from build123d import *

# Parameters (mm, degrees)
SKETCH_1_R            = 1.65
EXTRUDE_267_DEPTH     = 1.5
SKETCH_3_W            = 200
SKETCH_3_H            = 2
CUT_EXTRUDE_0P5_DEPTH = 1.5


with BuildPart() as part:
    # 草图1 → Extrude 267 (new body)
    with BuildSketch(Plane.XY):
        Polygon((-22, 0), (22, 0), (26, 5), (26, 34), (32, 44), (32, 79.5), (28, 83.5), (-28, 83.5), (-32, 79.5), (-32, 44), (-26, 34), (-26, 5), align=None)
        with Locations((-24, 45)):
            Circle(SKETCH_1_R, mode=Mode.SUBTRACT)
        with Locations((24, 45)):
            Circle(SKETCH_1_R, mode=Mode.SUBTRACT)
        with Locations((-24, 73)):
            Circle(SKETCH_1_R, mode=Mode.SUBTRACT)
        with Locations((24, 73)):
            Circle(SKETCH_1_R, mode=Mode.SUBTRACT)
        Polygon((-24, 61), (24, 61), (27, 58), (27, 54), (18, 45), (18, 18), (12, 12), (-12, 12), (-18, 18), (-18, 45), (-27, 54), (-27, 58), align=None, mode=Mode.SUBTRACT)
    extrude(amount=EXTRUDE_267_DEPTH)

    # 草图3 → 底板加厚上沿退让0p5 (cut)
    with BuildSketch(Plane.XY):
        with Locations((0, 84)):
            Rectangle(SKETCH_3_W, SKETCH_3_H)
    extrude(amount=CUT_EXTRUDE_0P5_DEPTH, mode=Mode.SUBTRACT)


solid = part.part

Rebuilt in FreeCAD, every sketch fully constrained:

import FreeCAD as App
import Part
import Sketcher

V = App.Vector

doc = App.newDocument("Part")
body = doc.addObject("PartDesign::Body", "Body")

sketch1 = body.newObject("Sketcher::SketchObject", "Sketch")
sketch1.AttachmentSupport = (doc.getObject("XY_Plane"), [""])
sketch1.MapMode = "FlatFace"
sketch1.addGeometry([
    Part.LineSegment(V(-22, 0, 0), V(22, 0, 0)),
    Part.LineSegment(V(22, 0, 0), V(26, 5, 0)),
    Part.LineSegment(V(26, 5, 0), V(26, 34, 0)),
    Part.LineSegment(V(26, 34, 0), V(32, 44, 0)),
    Part.LineSegment(V(32, 44, 0), V(32, 79.5, 0)),
    Part.LineSegment(V(32, 79.5, 0), V(28, 83.5, 0)),
    Part.LineSegment(V(28, 83.5, 0), V(-28, 83.5, 0)),
    Part.LineSegment(V(-28, 83.5, 0), V(-32, 79.5, 0)),
    Part.LineSegment(V(-32, 79.5, 0), V(-32, 44, 0)),
    Part.LineSegment(V(-32, 44, 0), V(-26, 34, 0)),
    Part.LineSegment(V(-26, 34, 0), V(-26, 5, 0)),
    Part.LineSegment(V(-26, 5, 0), V(-22, 0, 0)),
    Part.LineSegment(V(-27, 58, 0), V(-24, 61, 0)),
    Part.LineSegment(V(-24, 61, 0), V(24, 61, 0)),
    Part.LineSegment(V(24, 61, 0), V(27, 58, 0)),
    Part.LineSegment(V(27, 58, 0), V(27, 54, 0)),
    Part.LineSegment(V(27, 54, 0), V(18, 45, 0)),
    Part.LineSegment(V(18, 45, 0), V(18, 18, 0)),
    Part.LineSegment(V(18, 18, 0), V(12, 12, 0)),
    Part.LineSegment(V(12, 12, 0), V(-12, 12, 0)),
    Part.LineSegment(V(-12, 12, 0), V(-18, 18, 0)),
    Part.LineSegment(V(-18, 18, 0), V(-18, 45, 0)),
    Part.LineSegment(V(-18, 45, 0), V(-27, 54, 0)),
    Part.LineSegment(V(-27, 54, 0), V(-27, 58, 0)),
    Part.Circle(V(-24, 45, 0), V(0, 0, 1), 1.6),
    Part.Circle(V(-24, 73, 0), V(0, 0, 1), 1.6),
    Part.Circle(V(24, 45, 0), V(0, 0, 1), 1.6),
    Part.Circle(V(24, 73, 0), V(0, 0, 1), 1.6),
], False)
sketch1.addConstraint([
    Sketcher.Constraint("Coincident", 0, 2, 1, 1),
    Sketcher.Constraint("Coincident", 1, 2, 2, 1),
    Sketcher.Constraint("Coincident", 2, 2, 3, 1),
    Sketcher.Constraint("Coincident", 3, 2, 4, 1),
    Sketcher.Constraint("Coincident", 4, 2, 5, 1),
    Sketcher.Constraint("Coincident", 5, 2, 6, 1),
    Sketcher.Constraint("Coincident", 6, 2, 7, 1),
    Sketcher.Constraint("Coincident", 7, 2, 8, 1),
    Sketcher.Constraint("Coincident", 8, 2, 9, 1),
    Sketcher.Constraint("Coincident", 9, 2, 10, 1),
    Sketcher.Constraint("Coincident", 10, 2, 11, 1),
    Sketcher.Constraint("Coincident", 11, 2, 0, 1),
    Sketcher.Constraint("Coincident", 12, 2, 13, 1),
    Sketcher.Constraint("Coincident", 13, 2, 14, 1),
    Sketcher.Constraint("Coincident", 14, 2, 15, 1),
    Sketcher.Constraint("Coincident", 15, 2, 16, 1),
    Sketcher.Constraint("Coincident", 16, 2, 17, 1),
    Sketcher.Constraint("Coincident", 17, 2, 18, 1),
    Sketcher.Constraint("Coincident", 18, 2, 19, 1),
    Sketcher.Constraint("Coincident", 19, 2, 20, 1),
    Sketcher.Constraint("Coincident", 20, 2, 21, 1),
    Sketcher.Constraint("Coincident", 21, 2, 22, 1),
    Sketcher.Constraint("Coincident", 22, 2, 23, 1),
    Sketcher.Constraint("Coincident", 23, 2, 12, 1),
    Sketcher.Constraint("Horizontal", 0),
    Sketcher.Constraint("Vertical", 2),
    Sketcher.Constraint("Vertical", 4),
    Sketcher.Constraint("Horizontal", 6),
    Sketcher.Constraint("Vertical", 8),
    Sketcher.Constraint("Vertical", 10),
    Sketcher.Constraint("Horizontal", 13),
    Sketcher.Constraint("Vertical", 15),
    Sketcher.Constraint("Vertical", 17),
    Sketcher.Constraint("Horizontal", 19),
    Sketcher.Constraint("Vertical", 21),
    Sketcher.Constraint("Vertical", 23),
    Sketcher.Constraint("Equal", 24, 25),
    Sketcher.Constraint("Equal", 25, 26),
    Sketcher.Constraint("Equal", 26, 27),
    Sketcher.Constraint("Symmetric", 0, 2, 11, 2, -1, 1),
    Sketcher.Constraint("Symmetric", 24, 3, 26, 3, -2),
    Sketcher.Constraint("Symmetric", 25, 3, 27, 3, -2),
    Sketcher.Constraint("Symmetric", 4, 2, 7, 2, -2),
    Sketcher.Constraint("Symmetric", 2, 2, 9, 2, -2),
    Sketcher.Constraint("Symmetric", 17, 2, 20, 2, -2),
    Sketcher.Constraint("Symmetric", 15, 2, 22, 2, -2),
    Sketcher.Constraint("Perpendicular", 5, 7),
    Sketcher.Constraint("Parallel", 7, 12),
    Sketcher.Constraint("Perpendicular", 12, 14),
    Sketcher.Constraint("Perpendicular", 14, 16),
    Sketcher.Constraint("Parallel", 16, 18),
    Sketcher.Constraint("Perpendicular", 18, 20),
    Sketcher.Constraint("Parallel", 20, 22),
    Sketcher.Constraint("Horizontal", 3, 2, 8, 2),
    Sketcher.Constraint("Horizontal", 1, 2, 10, 2),
    Sketcher.Constraint("Horizontal", 26, 3, 16, 2),
    Sketcher.Constraint("Horizontal", 16, 2, 21, 2),
    Sketcher.Constraint("Horizontal", 14, 2, 23, 2),
    Sketcher.Constraint("Vertical", 24, 3, 25, 3),
    Sketcher.Constraint("Vertical", 25, 3, 12, 2),
    Sketcher.Constraint("Diameter", 24, 3.3),
    Sketcher.Constraint("DistanceX", 0, 1, 0, 2, 44.0),
    Sketcher.Constraint("DistanceX", 6, 2, 6, 1, 56.0),
    Sketcher.Constraint("DistanceX", 13, 1, 13, 2, 48.0),
    Sketcher.Constraint("DistanceX", 19, 2, 19, 1, 24.0),
    Sketcher.Constraint("DistanceY", 2, 1, 2, 2, 29.0),
    Sketcher.Constraint("DistanceY", 15, 2, 15, 1, 4.0),
    Sketcher.Constraint("DistanceY", 17, 2, 17, 1, 27.0),
    Sketcher.Constraint("DistanceY", 4, 1, 4, 2, 35.5),
    Sketcher.Constraint("DistanceY", -1, 1, 24, 3, 45.0),
    Sketcher.Constraint("DistanceY", -1, 1, 25, 3, 73.0),
    Sketcher.Constraint("DistanceX", -1, 1, 1, 2, 26.0),
    Sketcher.Constraint("DistanceY", -1, 1, 1, 2, 5.0),
    Sketcher.Constraint("DistanceX", -1, 1, 3, 2, 32.0),
    Sketcher.Constraint("DistanceY", -1, 1, 3, 2, 44.0),
    Sketcher.Constraint("DistanceY", -1, 1, 12, 2, 61.0),
    Sketcher.Constraint("DistanceX", -1, 1, 14, 2, 27.0),
])
pad1 = body.newObject("PartDesign::Pad", "Pad")
pad1.Profile = sketch1
pad1.Length = 1.5

sketch2 = body.newObject("Sketcher::SketchObject", "Sketch001")
sketch2.AttachmentSupport = (doc.getObject("XY_Plane"), [""])
sketch2.MapMode = "FlatFace"
sketch2.addGeometry([
    Part.LineSegment(V(-100, 85, 0), V(-100, 83, 0)),
    Part.LineSegment(V(-100, 83, 0), V(100, 83, 0)),
    Part.LineSegment(V(100, 83, 0), V(100, 85, 0)),
    Part.LineSegment(V(100, 85, 0), V(-100, 85, 0)),
], False)
sketch2.addConstraint([
    Sketcher.Constraint("Coincident", 0, 2, 1, 1),
    Sketcher.Constraint("Coincident", 1, 2, 2, 1),
    Sketcher.Constraint("Coincident", 2, 2, 3, 1),
    Sketcher.Constraint("Coincident", 3, 2, 0, 1),
    Sketcher.Constraint("Vertical", 0),
    Sketcher.Constraint("Horizontal", 1),
    Sketcher.Constraint("Vertical", 2),
    Sketcher.Constraint("Horizontal", 3),
    Sketcher.Constraint("DistanceX", 1, 1, 1, 2, 200.0),
    Sketcher.Constraint("DistanceY", 0, 2, 0, 1, 2.0),
    Sketcher.Constraint("DistanceX", 0, 2, -1, 1, 100.0),
    Sketcher.Constraint("DistanceY", -1, 1, 0, 2, 83.0),
])
pocket1 = body.newObject("PartDesign::Pocket", "Pocket")
pocket1.Profile = sketch2
pocket1.Length = 1.5
pocket1.Reversed = True

doc.recompute()
